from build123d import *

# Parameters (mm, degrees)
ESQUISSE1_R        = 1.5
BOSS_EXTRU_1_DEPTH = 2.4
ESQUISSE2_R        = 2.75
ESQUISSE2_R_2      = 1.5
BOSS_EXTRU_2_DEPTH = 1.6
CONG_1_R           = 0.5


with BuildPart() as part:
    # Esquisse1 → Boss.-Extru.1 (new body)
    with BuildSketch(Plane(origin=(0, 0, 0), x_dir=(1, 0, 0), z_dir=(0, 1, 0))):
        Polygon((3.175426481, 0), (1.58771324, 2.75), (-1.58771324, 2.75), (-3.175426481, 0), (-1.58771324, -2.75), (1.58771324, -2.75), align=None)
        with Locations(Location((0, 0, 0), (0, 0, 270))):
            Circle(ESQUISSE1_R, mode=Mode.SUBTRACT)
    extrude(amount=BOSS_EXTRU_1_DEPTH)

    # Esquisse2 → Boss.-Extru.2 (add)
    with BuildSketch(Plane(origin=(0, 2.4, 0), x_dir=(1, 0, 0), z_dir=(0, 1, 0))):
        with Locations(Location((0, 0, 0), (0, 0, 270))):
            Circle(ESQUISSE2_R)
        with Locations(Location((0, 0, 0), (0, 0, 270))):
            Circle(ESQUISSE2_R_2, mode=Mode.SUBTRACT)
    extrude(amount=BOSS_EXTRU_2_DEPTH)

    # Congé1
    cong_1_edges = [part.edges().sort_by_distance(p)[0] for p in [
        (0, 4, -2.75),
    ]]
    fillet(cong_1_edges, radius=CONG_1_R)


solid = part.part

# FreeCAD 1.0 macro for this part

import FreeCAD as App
import Part
import Sketcher
from FreeCAD import Vector
Q = App.Units.Quantity


def edges_at(feature, points):
    """Names of the edges that pass closest to the given points."""
    edges = feature.Shape.Edges
    near = lambda p: min(range(len(edges)), key=lambda i: edges[i].distToShape(Part.Vertex(*p))[0])
    return sorted({f"Edge{near(p) + 1}" for p in points})

doc = App.newDocument("Part")
body = doc.addObject("PartDesign::Body", "Body")

# Sketch on XZ plane
sketch1 = body.newObject("Sketcher::SketchObject", "Sketch")
sketch1.AttachmentSupport = (doc.getObject("XZ_Plane"), [""])
sketch1.MapMode = "FlatFace"
sketch1.addGeometry([
    Part.LineSegment(Vector(3.2, 0, 0), Vector(1.6, -2.8, 0)),  # 0
    Part.LineSegment(Vector(1.6, -2.8, 0), Vector(-1.6, -2.8, 0)),  # 1
    Part.LineSegment(Vector(-1.6, -2.8, 0), Vector(-3.2, 0, 0)),  # 2
    Part.LineSegment(Vector(-3.2, 0, 0), Vector(-1.6, 2.8, 0)),  # 3
    Part.LineSegment(Vector(-1.6, 2.8, 0), Vector(1.6, 2.8, 0)),  # 4
    Part.LineSegment(Vector(1.6, 2.8, 0), Vector(3.2, 0, 0)),  # 5
    Part.Circle(Vector(0, 0, 0), Vector(0, 0, 1), 1.5),  # 6
], False)
sketch1.addConstraint([
    Sketcher.Constraint("Coincident", 0, 2, 1, 1),
    Sketcher.Constraint("Coincident", 1, 2, 2, 1),
    Sketcher.Constraint("Coincident", 2, 2, 3, 1),
    Sketcher.Constraint("Coincident", 3, 2, 4, 1),
    Sketcher.Constraint("Coincident", 4, 2, 5, 1),
    Sketcher.Constraint("Coincident", 5, 2, 0, 1),
    Sketcher.Constraint("Horizontal", 1),
    Sketcher.Constraint("Horizontal", 4),
    Sketcher.Constraint("Coincident", 6, 3, -1, 1),
    Sketcher.Constraint("Symmetric", 0, 2, 3, 2, -1, 1),
    Sketcher.Constraint("Symmetric", 2, 2, 5, 2, -1, 1),
    Sketcher.Constraint("PointOnObject", 2, 2, -1),
    Sketcher.Constraint("Parallel", 2, 5),
    Sketcher.Constraint("Vertical", 1, 2, 3, 2),
    Sketcher.Constraint("Diameter", 6, 3.0),
    Sketcher.Constraint("Angle", 0, Q("-120 deg")),
    Sketcher.Constraint("DistanceY", 1, 2, 3, 2, 5.5),
    Sketcher.Constraint("DistanceX", 1, 2, 1, 1, 3.175426),
])
pad1 = body.newObject("PartDesign::Pad", "Pad")
pad1.Profile = sketch1
pad1.Length = 2.4
pad1.Reversed = True

# Sketch on XZ plane
sketch2 = body.newObject("Sketcher::SketchObject", "Sketch001")
sketch2.AttachmentSupport = (doc.getObject("XZ_Plane"), [""])
sketch2.MapMode = "FlatFace"
sketch2.AttachmentOffset = App.Placement(Vector(0, 0, -2.4), App.Rotation())
sketch2.addGeometry([
    Part.Circle(Vector(0, 0, 0), Vector(0, 0, 1), 2.8),
    Part.Circle(Vector(0, 0, 0), Vector(0, 0, 1), 1.5),
], False)
sketch2.addConstraint([
    Sketcher.Constraint("Coincident", 0, 3, -1, 1),
    Sketcher.Constraint("Coincident", 1, 3, -1, 1),
    Sketcher.Constraint("Diameter", 1, 3.0),
    Sketcher.Constraint("Diameter", 0, 5.5),
])
pad2 = body.newObject("PartDesign::Pad", "Pad001")
pad2.Profile = sketch2
pad2.Length = 1.6
pad2.Reversed = True
doc.recompute()

fillet = body.newObject("PartDesign::Fillet", "Fillet")
fillet.Base = (pad2, edges_at(pad2, [(0, 4, -2.75)]))
fillet.Radius = 0.5

doc.recompute()
